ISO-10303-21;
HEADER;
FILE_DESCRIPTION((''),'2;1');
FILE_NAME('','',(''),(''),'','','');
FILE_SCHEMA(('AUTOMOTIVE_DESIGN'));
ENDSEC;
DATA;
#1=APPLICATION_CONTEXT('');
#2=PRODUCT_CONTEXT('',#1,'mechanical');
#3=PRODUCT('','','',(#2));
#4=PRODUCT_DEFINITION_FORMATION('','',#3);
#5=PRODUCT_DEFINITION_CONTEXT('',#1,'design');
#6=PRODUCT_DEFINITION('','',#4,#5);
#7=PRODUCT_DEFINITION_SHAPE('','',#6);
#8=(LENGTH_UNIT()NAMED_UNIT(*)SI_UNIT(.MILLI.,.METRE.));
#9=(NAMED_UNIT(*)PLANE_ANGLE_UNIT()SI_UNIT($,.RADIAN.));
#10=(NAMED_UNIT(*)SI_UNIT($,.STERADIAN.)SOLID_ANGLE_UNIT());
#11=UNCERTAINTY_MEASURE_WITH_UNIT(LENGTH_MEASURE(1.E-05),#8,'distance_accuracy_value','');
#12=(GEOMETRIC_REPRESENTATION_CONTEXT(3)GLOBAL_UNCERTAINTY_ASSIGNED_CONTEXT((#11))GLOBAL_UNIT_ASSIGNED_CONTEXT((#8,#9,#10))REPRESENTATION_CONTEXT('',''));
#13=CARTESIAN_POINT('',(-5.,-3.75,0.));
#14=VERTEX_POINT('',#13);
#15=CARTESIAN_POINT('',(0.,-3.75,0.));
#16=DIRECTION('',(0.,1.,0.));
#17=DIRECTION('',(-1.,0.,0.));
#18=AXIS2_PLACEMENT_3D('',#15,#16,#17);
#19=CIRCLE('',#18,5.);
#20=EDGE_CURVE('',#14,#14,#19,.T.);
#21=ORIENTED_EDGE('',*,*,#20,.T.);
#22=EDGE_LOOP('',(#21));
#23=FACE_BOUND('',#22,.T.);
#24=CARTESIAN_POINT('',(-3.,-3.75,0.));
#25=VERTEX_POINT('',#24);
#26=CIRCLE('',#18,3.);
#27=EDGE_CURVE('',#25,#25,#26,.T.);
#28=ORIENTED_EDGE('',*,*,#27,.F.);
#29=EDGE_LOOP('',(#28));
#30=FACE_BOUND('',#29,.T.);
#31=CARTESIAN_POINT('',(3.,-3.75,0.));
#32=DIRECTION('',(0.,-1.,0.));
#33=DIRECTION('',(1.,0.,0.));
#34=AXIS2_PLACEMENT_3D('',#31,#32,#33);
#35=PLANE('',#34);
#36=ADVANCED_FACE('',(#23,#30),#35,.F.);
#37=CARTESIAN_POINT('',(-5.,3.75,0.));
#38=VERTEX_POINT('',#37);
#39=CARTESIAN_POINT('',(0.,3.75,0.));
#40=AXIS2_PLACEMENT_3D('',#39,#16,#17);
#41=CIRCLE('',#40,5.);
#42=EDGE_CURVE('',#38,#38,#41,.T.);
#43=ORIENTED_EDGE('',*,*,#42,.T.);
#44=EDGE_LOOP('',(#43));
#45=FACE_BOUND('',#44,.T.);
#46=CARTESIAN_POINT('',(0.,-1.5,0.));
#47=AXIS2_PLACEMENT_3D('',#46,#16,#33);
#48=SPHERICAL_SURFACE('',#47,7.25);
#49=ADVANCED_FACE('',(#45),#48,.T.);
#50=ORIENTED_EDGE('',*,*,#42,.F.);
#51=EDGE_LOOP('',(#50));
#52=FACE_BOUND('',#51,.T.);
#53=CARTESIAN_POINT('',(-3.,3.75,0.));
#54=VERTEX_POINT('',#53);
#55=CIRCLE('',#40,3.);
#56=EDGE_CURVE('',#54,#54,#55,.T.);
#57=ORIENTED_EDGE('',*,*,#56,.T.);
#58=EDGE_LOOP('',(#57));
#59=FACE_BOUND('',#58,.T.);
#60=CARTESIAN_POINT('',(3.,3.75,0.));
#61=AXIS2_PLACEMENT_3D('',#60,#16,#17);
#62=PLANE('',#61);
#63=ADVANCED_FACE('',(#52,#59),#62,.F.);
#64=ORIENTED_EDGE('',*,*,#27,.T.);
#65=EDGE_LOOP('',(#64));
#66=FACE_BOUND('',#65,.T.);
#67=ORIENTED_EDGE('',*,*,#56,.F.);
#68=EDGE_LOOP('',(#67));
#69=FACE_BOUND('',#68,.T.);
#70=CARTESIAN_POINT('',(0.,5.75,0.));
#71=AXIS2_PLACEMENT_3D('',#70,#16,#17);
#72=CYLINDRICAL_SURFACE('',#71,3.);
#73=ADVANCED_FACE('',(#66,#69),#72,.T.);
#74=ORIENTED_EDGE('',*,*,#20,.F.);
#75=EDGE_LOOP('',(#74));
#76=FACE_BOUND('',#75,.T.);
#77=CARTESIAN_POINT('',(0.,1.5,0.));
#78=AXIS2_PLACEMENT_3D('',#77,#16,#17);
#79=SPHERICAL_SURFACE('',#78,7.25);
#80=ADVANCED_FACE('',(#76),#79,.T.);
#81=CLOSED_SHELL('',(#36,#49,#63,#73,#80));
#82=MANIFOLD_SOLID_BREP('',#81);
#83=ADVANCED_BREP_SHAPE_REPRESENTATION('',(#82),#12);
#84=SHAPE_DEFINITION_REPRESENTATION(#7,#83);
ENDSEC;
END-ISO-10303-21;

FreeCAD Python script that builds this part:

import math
import FreeCAD as App
import Part
import Sketcher

V = App.Vector
Q = App.Units.Quantity

doc = App.newDocument("Part")
body = doc.addObject("PartDesign::Body", "Body")

sketch1 = doc.addObject("Sketcher::SketchObject", "Sketch")
body.addObject(sketch1)
sketch1.AttachmentSupport = (doc.XY_Plane, [""])
sketch1.MapMode = "FlatFace"
sketch1.addGeometry(Part.LineSegment(V(0, 5.75, 0), V(0, -5.75, 0)), False)
sketch1.addGeometry(Part.ArcOfCircle(Part.Circle(V(0, 1.5, 0), V(0, 0, 1), 7.25), math.radians(-90), math.radians(-46.397181)), False)
sketch1.addGeometry(Part.LineSegment(V(5, -3.75, 0), V(3, -3.75, 0)), False)
sketch1.addGeometry(Part.LineSegment(V(3, -3.75, 0), V(3, 3.75, 0)), False)
sketch1.addGeometry(Part.LineSegment(V(3, 3.75, 0), V(5, 3.75, 0)), False)
sketch1.addGeometry(Part.ArcOfCircle(Part.Circle(V(0, -1.5, 0), V(0, 0, 1), 7.25), math.radians(46.397181), math.radians(90)), False)
sketch1.addConstraint(Sketcher.Constraint("Coincident", 0, 2, 1, 1))
sketch1.addConstraint(Sketcher.Constraint("Coincident", 1, 2, 2, 1))
sketch1.addConstraint(Sketcher.Constraint("Coincident", 2, 2, 3, 1))
sketch1.addConstraint(Sketcher.Constraint("Coincident", 3, 2, 4, 1))
sketch1.addConstraint(Sketcher.Constraint("Coincident", 4, 2, 5, 1))
sketch1.addConstraint(Sketcher.Constraint("Coincident", 5, 2, 0, 1))
sketch1.addConstraint(Sketcher.Constraint("Vertical", 0))
sketch1.addConstraint(Sketcher.Constraint("Horizontal", 2))
sketch1.addConstraint(Sketcher.Constraint("Vertical", 3))
sketch1.addConstraint(Sketcher.Constraint("Horizontal", 4))
sketch1.addConstraint(Sketcher.Constraint("Equal", 1, 5))
sketch1.addConstraint(Sketcher.Constraint("Symmetric", 1, 3, 5, 3, -1, 1))
sketch1.addConstraint(Sketcher.Constraint("Symmetric", 1, 2, 4, 2, -1))
sketch1.addConstraint(Sketcher.Constraint("PointOnObject", 0, 2, -2))
sketch1.addConstraint(Sketcher.Constraint("DistanceX", 2, 2, 2, 1, Q("2 mm")))
sketch1.addConstraint(Sketcher.Constraint("Radius", 1, Q("7.25 mm")))
sketch1.addConstraint(Sketcher.Constraint("DistanceY", 0, 2, 0, 1, Q("11.5 mm")))
sketch1.addConstraint(Sketcher.Constraint("DistanceY", 3, 1, 3, 2, Q("7.5 mm")))
revolution = doc.addObject("PartDesign::Revolution", "Revolution")
body.addObject(revolution)
revolution.Profile = sketch1
revolution.ReferenceAxis = (sketch1, ["V_Axis"])
revolution.Angle = 360

doc.recompute()
